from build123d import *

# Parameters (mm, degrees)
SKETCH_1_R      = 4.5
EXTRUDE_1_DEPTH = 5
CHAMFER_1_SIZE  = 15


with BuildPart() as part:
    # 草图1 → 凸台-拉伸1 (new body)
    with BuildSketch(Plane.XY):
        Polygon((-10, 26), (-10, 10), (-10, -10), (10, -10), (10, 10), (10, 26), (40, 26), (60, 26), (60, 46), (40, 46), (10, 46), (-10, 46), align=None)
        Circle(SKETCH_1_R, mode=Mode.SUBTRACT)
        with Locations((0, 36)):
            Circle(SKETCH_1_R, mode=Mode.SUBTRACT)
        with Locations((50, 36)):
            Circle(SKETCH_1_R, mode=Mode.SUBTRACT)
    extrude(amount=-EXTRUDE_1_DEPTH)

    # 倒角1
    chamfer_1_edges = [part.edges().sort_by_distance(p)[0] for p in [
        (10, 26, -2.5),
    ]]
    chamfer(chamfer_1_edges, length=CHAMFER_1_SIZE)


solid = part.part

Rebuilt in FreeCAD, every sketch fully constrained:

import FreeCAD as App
import Part
import Sketcher


def edges_at(feature, points):
    """Names of the edges that pass closest to the given points."""
    edges = feature.Shape.Edges
    near = lambda p: min(range(len(edges)), key=lambda i: edges[i].distToShape(Part.Vertex(*p))[0])
    return sorted({f"Edge{near(p) + 1}" for p in points})

doc = App.newDocument("Part")
body = doc.addObject("PartDesign::Body", "Body")

# Sketch on XY plane
sketch1 = body.newObject("Sketcher::SketchObject", "Sketch")
sketch1.AttachmentSupport = (doc.getObject("XY_Plane"), [""])
sketch1.MapMode = "FlatFace"
sketch1.addGeometry(Part.LineSegment(App.Vector(-10, -10, 0), App.Vector(10, -10, 0)), False)
sketch1.addGeometry(Part.LineSegment(App.Vector(10, -10, 0), App.Vector(10, 26, 0)), False)
sketch1.addGeometry(Part.LineSegment(App.Vector(10, 26, 0), App.Vector(60, 26, 0)), False)
sketch1.addGeometry(Part.LineSegment(App.Vector(60, 26, 0), App.Vector(60, 46, 0)), False)
sketch1.addGeometry(Part.LineSegment(App.Vector(60, 46, 0), App.Vector(-10, 46, 0)), False)
sketch1.addGeometry(Part.LineSegment(App.Vector(-10, 46, 0), App.Vector(-10, -10, 0)), False)
sketch1.addGeometry(Part.Circle(App.Vector(0, 0, 0), App.Vector(0, 0, 1), 4.5), False)
sketch1.addGeometry(Part.Circle(App.Vector(0, 36, 0), App.Vector(0, 0, 1), 4.5), False)
sketch1.addGeometry(Part.Circle(App.Vector(50, 36, 0), App.Vector(0, 0, 1), 4.5), False)
sketch1.addConstraint(Sketcher.Constraint("Coincident", 0, 2, 1, 1))
sketch1.addConstraint(Sketcher.Constraint("Coincident", 1, 2, 2, 1))
sketch1.addConstraint(Sketcher.Constraint("Coincident", 2, 2, 3, 1))
sketch1.addConstraint(Sketcher.Constraint("Coincident", 3, 2, 4, 1))
sketch1.addConstraint(Sketcher.Constraint("Coincident", 4, 2, 5, 1))
sketch1.addConstraint(Sketcher.Constraint("Coincident", 5, 2, 0, 1))
sketch1.addConstraint(Sketcher.Constraint("Horizontal", 0))
sketch1.addConstraint(Sketcher.Constraint("Vertical", 1))
sketch1.addConstraint(Sketcher.Constraint("Horizontal", 2))
sketch1.addConstraint(Sketcher.Constraint("Vertical", 3))
sketch1.addConstraint(Sketcher.Constraint("Horizontal", 4))
sketch1.addConstraint(Sketcher.Constraint("Vertical", 5))
sketch1.addConstraint(Sketcher.Constraint("Coincident", 6, 3, -1, 1))
sketch1.addConstraint(Sketcher.Constraint("Equal", 6, 7))
sketch1.addConstraint(Sketcher.Constraint("Equal", 7, 8))
sketch1.addConstraint(Sketcher.Constraint("PointOnObject", 7, 3, -2))
sketch1.addConstraint(Sketcher.Constraint("Horizontal", 7, 3, 8, 3))
sketch1.addConstraint(Sketcher.Constraint("Equal", 0, 3))
sketch1.addConstraint(Sketcher.Constraint("Diameter", 6, 9.0))
sketch1.addConstraint(Sketcher.Constraint("DistanceX", 0, 1, 0, 2, 20.0))
sketch1.addConstraint(Sketcher.Constraint("DistanceX", 2, 1, 2, 2, 50.0))
sketch1.addConstraint(Sketcher.Constraint("DistanceY", 1, 1, 1, 2, 36.0))
sketch1.addConstraint(Sketcher.Constraint("DistanceY", -1, 1, 7, 3, 36.0))
sketch1.addConstraint(Sketcher.Constraint("DistanceX", -1, 1, 8, 3, 50.0))
sketch1.addConstraint(Sketcher.Constraint("DistanceX", -1, 1, 0, 2, 10.0))
sketch1.addConstraint(Sketcher.Constraint("DistanceY", 0, 2, -1, 1, 10.0))
pad1 = body.newObject("PartDesign::Pad", "Pad")
pad1.Profile = sketch1
pad1.Length = 5
pad1.Reversed = True
doc.recompute()

chamfer = body.newObject("PartDesign::Chamfer", "Chamfer")
chamfer.Base = (pad1, edges_at(pad1, [(10, 26, -2.5)]))
chamfer.Size = 15

doc.recompute()
